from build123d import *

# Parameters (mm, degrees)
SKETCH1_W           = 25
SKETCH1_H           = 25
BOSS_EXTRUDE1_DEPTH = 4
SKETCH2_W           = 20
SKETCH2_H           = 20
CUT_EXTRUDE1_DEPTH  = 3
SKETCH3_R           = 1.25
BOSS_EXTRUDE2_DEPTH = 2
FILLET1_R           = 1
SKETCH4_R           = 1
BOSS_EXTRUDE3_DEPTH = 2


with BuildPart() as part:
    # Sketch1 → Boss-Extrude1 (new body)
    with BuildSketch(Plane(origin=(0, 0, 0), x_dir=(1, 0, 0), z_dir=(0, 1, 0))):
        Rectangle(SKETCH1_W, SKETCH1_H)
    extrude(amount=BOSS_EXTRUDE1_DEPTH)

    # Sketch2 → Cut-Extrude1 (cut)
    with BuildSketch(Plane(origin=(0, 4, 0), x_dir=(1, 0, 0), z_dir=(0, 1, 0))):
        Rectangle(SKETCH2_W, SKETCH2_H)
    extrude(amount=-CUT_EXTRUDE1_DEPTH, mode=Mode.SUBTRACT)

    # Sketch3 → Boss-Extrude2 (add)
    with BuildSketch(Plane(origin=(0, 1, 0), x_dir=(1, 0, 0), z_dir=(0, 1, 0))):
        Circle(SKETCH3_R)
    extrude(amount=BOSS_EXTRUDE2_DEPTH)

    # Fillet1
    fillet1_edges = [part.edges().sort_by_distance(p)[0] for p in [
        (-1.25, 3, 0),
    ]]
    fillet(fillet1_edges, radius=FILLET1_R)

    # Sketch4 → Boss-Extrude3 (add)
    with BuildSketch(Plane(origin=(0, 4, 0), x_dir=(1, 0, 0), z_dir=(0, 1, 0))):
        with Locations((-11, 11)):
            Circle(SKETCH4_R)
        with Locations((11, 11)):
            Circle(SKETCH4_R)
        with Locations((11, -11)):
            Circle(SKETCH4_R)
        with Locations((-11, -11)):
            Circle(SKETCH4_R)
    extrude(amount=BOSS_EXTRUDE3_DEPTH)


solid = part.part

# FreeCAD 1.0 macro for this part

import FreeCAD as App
import Part
import Sketcher
from FreeCAD import Vector


def edges_at(feature, points):
    """Names of the edges that pass closest to the given points."""
    edges = feature.Shape.Edges
    near = lambda p: min(range(len(edges)), key=lambda i: edges[i].distToShape(Part.Vertex(*p))[0])
    return sorted({f"Edge{near(p) + 1}" for p in points})

doc = App.newDocument("Part")
params = doc.addObject("Spreadsheet::Sheet", "Params")
for row, (alias, value) in enumerate([
    ("sketch1_width", "25 mm"),
    ("pad1_length", "4 mm"),
    ("sketch2_width", "20 mm"),
    ("pocket1_length", "3 mm"),
    ("sketch3_diameter", "2.5 mm"),
    ("pad2_length", "2 mm"),
    ("fillet_radius", "1 mm"),
    ("sketch4_diameter", "2 mm"),
    ("pad3_length", "2 mm"),
], start=1):
    params.set(f"A{row}", alias)
    params.set(f"B{row}", "=" + value)
    params.setAlias(f"B{row}", alias)

body = doc.addObject("PartDesign::Body", "Body")

# Sketch on XZ plane
sketch1 = body.newObject("Sketcher::SketchObject", "Sketch")
sketch1.AttachmentSupport = (doc.getObject("XZ_Plane"), [""])
sketch1.MapMode = "FlatFace"
sketch1.addGeometry([
    Part.LineSegment(Vector(-12, -12, 0), Vector(-12, 12, 0)),
    Part.LineSegment(Vector(-12, 12, 0), Vector(12, 12, 0)),
    Part.LineSegment(Vector(12, 12, 0), Vector(12, -12, 0)),
    Part.LineSegment(Vector(12, -12, 0), Vector(-12, -12, 0)),
], False)
sketch1.addConstraint([
    Sketcher.Constraint("Coincident", 0, 2, 1, 1),
    Sketcher.Constraint("Coincident", 1, 2, 2, 1),
    Sketcher.Constraint("Coincident", 2, 2, 3, 1),
    Sketcher.Constraint("Coincident", 3, 2, 0, 1),
    Sketcher.Constraint("Vertical", 0),
    Sketcher.Constraint("Horizontal", 1),
    Sketcher.Constraint("Vertical", 2),
    Sketcher.Constraint("Horizontal", 3),
    Sketcher.Constraint("Symmetric", 0, 2, 2, 2, -1, 1),
    Sketcher.Constraint("Equal", 3, 0),
    Sketcher.Constraint("DistanceX", 1, 1, 1, 2, 25.0),
])
sketch1.setExpression("Constraints[10]", "Params.sketch1_width")
pad1 = body.newObject("PartDesign::Pad", "Pad")
pad1.Profile = sketch1
pad1.setExpression("Length", "Params.pad1_length")
pad1.Reversed = True

# Sketch on XZ plane
sketch2 = body.newObject("Sketcher::SketchObject", "Sketch001")
sketch2.AttachmentSupport = (doc.getObject("XZ_Plane"), [""])
sketch2.MapMode = "FlatFace"
sketch2.AttachmentOffset = App.Placement(Vector(0, 0, -4), App.Rotation())
sketch2.addGeometry([
    Part.LineSegment(Vector(-10, -10, 0), Vector(-10, 10, 0)),
    Part.LineSegment(Vector(-10, 10, 0), Vector(10, 10, 0)),
    Part.LineSegment(Vector(10, 10, 0), Vector(10, -10, 0)),
    Part.LineSegment(Vector(10, -10, 0), Vector(-10, -10, 0)),
], False)
sketch2.addConstraint([
    Sketcher.Constraint("Coincident", 0, 2, 1, 1),
    Sketcher.Constraint("Coincident", 1, 2, 2, 1),
    Sketcher.Constraint("Coincident", 2, 2, 3, 1),
    Sketcher.Constraint("Coincident", 3, 2, 0, 1),
    Sketcher.Constraint("Vertical", 0),
    Sketcher.Constraint("Horizontal", 1),
    Sketcher.Constraint("Vertical", 2),
    Sketcher.Constraint("Horizontal", 3),
    Sketcher.Constraint("Symmetric", 0, 2, 2, 2, -1, 1),
    Sketcher.Constraint("Equal", 3, 0),
    Sketcher.Constraint("DistanceX", 1, 1, 1, 2, 20.0),
])
sketch2.setExpression("Constraints[10]", "Params.sketch2_width")
pocket1 = body.newObject("PartDesign::Pocket", "Pocket")
pocket1.Profile = sketch2
pocket1.setExpression("Length", "Params.pocket1_length")
pocket1.Reversed = True

# Sketch on XZ plane
sketch3 = body.newObject("Sketcher::SketchObject", "Sketch002")
sketch3.AttachmentSupport = (doc.getObject("XZ_Plane"), [""])
sketch3.MapMode = "FlatFace"
sketch3.AttachmentOffset = App.Placement(Vector(0, 0, -1), App.Rotation())
sketch3.addGeometry(Part.Circle(Vector(0, 0, 0), Vector(0, 0, 1), 1.2), False)
sketch3.addConstraint([
    Sketcher.Constraint("Coincident", 0, 3, -1, 1),
    Sketcher.Constraint("Diameter", 0, 2.5),
])
sketch3.setExpression("Constraints[1]", "Params.sketch3_diameter")
pad2 = body.newObject("PartDesign::Pad", "Pad001")
pad2.Profile = sketch3
pad2.setExpression("Length", "Params.pad2_length")
pad2.Reversed = True
doc.recompute()

fillet = body.newObject("PartDesign::Fillet", "Fillet")
fillet.Base = (pad2, edges_at(pad2, [(-1.25, 3, 0)]))
fillet.setExpression("Radius", "Params.fillet_radius")

# Sketch on XZ plane
sketch4 = body.newObject("Sketcher::SketchObject", "Sketch003")
sketch4.AttachmentSupport = (doc.getObject("XZ_Plane"), [""])
sketch4.MapMode = "FlatFace"
sketch4.AttachmentOffset = App.Placement(Vector(0, 0, -4), App.Rotation())
sketch4.addGeometry([
    Part.Circle(Vector(-11, -11, 0), Vector(0, 0, 1), 1),
    Part.Circle(Vector(11, -11, 0), Vector(0, 0, 1), 1),
    Part.Circle(Vector(11, 11, 0), Vector(0, 0, 1), 1),
    Part.Circle(Vector(-11, 11, 0), Vector(0, 0, 1), 1),
], False)
sketch4.addConstraint([
    Sketcher.Constraint("Equal", 0, 1),
    Sketcher.Constraint("Equal", 1, 2),
    Sketcher.Constraint("Equal", 2, 3),
    Sketcher.Constraint("Symmetric", 0, 3, 2, 3, -1, 1),
    Sketcher.Constraint("Symmetric", 1, 3, 3, 3, -1, 1),
    Sketcher.Constraint("Symmetric", 0, 3, 1, 3, -2),
    Sketcher.Constraint("Diameter", 0, 2.0),
    Sketcher.Constraint("DistanceX", 0, 3, -1, 1, 11.0),
    Sketcher.Constraint("DistanceY", 0, 3, -1, 1, 11.0),
])
sketch4.setExpression("Constraints[6]", "Params.sketch4_diameter")
pad3 = body.newObject("PartDesign::Pad", "Pad002")
pad3.Profile = sketch4
pad3.setExpression("Length", "Params.pad3_length")
pad3.Reversed = True

doc.recompute()
